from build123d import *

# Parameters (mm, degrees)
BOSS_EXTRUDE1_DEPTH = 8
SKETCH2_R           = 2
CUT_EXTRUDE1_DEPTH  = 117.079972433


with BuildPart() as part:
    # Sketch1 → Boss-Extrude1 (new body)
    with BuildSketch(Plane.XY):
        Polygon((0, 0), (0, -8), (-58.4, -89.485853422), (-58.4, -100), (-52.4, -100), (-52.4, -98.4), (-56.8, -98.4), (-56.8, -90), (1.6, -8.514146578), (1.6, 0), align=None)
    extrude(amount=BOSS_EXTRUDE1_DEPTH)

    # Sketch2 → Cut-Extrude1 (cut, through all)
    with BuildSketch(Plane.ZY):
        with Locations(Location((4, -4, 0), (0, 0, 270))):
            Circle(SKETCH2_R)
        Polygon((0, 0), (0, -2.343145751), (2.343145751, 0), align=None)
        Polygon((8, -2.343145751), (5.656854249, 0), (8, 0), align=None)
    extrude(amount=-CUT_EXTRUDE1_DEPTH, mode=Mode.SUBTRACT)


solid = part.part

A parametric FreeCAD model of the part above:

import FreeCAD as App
import Part
import Sketcher

doc = App.newDocument("Part")
body = doc.addObject("PartDesign::Body", "Body")

sketch1 = body.newObject("Sketcher::SketchObject", "Sketch")
sketch1.AttachmentSupport = (doc.getObject("XY_Plane"), [""])
sketch1.MapMode = "FlatFace"
sketch1.addGeometry([
    Part.LineSegment(App.Vector(0, 0, 0), App.Vector(0, -8, 0)),
    Part.LineSegment(App.Vector(0, -8, 0), App.Vector(-58.4, -89.5, 0)),
    Part.LineSegment(App.Vector(-58.4, -89.5, 0), App.Vector(-58.4, -100, 0)),
    Part.LineSegment(App.Vector(-58.4, -100, 0), App.Vector(-52.4, -100, 0)),
    Part.LineSegment(App.Vector(-52.4, -100, 0), App.Vector(-52.4, -98.4, 0)),
    Part.LineSegment(App.Vector(-52.4, -98.4, 0), App.Vector(-56.8, -98.4, 0)),
    Part.LineSegment(App.Vector(-56.8, -98.4, 0), App.Vector(-56.8, -90, 0)),
    Part.LineSegment(App.Vector(-56.8, -90, 0), App.Vector(1.6, -8.5, 0)),
    Part.LineSegment(App.Vector(1.6, -8.5, 0), App.Vector(1.6, 0, 0)),
    Part.LineSegment(App.Vector(1.6, 0, 0), App.Vector(0, 0, 0)),
], False)
sketch1.addConstraint([
    Sketcher.Constraint("Coincident", 0, 2, 1, 1),
    Sketcher.Constraint("Coincident", 1, 2, 2, 1),
    Sketcher.Constraint("Coincident", 2, 2, 3, 1),
    Sketcher.Constraint("Coincident", 3, 2, 4, 1),
    Sketcher.Constraint("Coincident", 4, 2, 5, 1),
    Sketcher.Constraint("Coincident", 5, 2, 6, 1),
    Sketcher.Constraint("Coincident", 6, 2, 7, 1),
    Sketcher.Constraint("Coincident", 7, 2, 8, 1),
    Sketcher.Constraint("Coincident", 8, 2, 9, 1),
    Sketcher.Constraint("Coincident", 9, 2, 0, 1),
    Sketcher.Constraint("Vertical", 0),
    Sketcher.Constraint("Vertical", 2),
    Sketcher.Constraint("Horizontal", 3),
    Sketcher.Constraint("Vertical", 4),
    Sketcher.Constraint("Horizontal", 5),
    Sketcher.Constraint("Vertical", 6),
    Sketcher.Constraint("Vertical", 8),
    Sketcher.Constraint("Horizontal", 9),
    Sketcher.Constraint("Coincident", 9, 2, -1, 1),
    Sketcher.Constraint("Parallel", 1, 7),
    Sketcher.Constraint("Equal", 9, 4),
    Sketcher.Constraint("Equal", 1, 7),
    Sketcher.Constraint("DistanceX", 3, 1, 3, 2, 6.0),
    Sketcher.Constraint("DistanceY", 0, 2, 0, 1, 8.0),
    Sketcher.Constraint("DistanceX", 5, 2, 5, 1, 4.4),
    Sketcher.Constraint("DistanceY", 6, 1, 6, 2, 8.4),
    Sketcher.Constraint("DistanceY", 2, 2, -1, 1, 100.0),
    Sketcher.Constraint("DistanceX", 1, 2, 7, 2, 60.0),
    Sketcher.Constraint("DistanceY", 2, 2, 2, 1, 10.514147),
])
pad1 = body.newObject("PartDesign::Pad", "Pad")
pad1.Profile = sketch1
pad1.Length = 8

sketch2 = body.newObject("Sketcher::SketchObject", "Sketch001")
sketch2.AttachmentSupport = (doc.getObject("YZ_Plane"), [""])
sketch2.MapMode = "FlatFace"
sketch2.addGeometry([
    Part.Circle(App.Vector(-4, 4, 0), App.Vector(0, 0, 1), 2),
    Part.LineSegment(App.Vector(0, 0, 0), App.Vector(-2.3, 0, 0)),
    Part.LineSegment(App.Vector(-2.3, 0, 0), App.Vector(0, 2.3, 0)),
    Part.LineSegment(App.Vector(0, 2.3, 0), App.Vector(0, 0, 0)),
    Part.LineSegment(App.Vector(0, 5.7, 0), App.Vector(-2.3, 8, 0)),
    Part.LineSegment(App.Vector(-2.3, 8, 0), App.Vector(0, 8, 0)),
    Part.LineSegment(App.Vector(0, 8, 0), App.Vector(0, 5.7, 0)),
], False)
sketch2.addConstraint([
    Sketcher.Constraint("Coincident", 1, 2, 2, 1),
    Sketcher.Constraint("Coincident", 2, 2, 3, 1),
    Sketcher.Constraint("Coincident", 3, 2, 1, 1),
    Sketcher.Constraint("Coincident", 4, 2, 5, 1),
    Sketcher.Constraint("Coincident", 5, 2, 6, 1),
    Sketcher.Constraint("Coincident", 6, 2, 4, 1),
    Sketcher.Constraint("Horizontal", 1),
    Sketcher.Constraint("Vertical", 3),
    Sketcher.Constraint("Horizontal", 5),
    Sketcher.Constraint("Vertical", 6),
    Sketcher.Constraint("Coincident", 3, 2, -1, 1),
    Sketcher.Constraint("PointOnObject", 5, 2, -2),
    Sketcher.Constraint("Perpendicular", 2, 4),
    Sketcher.Constraint("Vertical", 1, 2, 4, 2),
    Sketcher.Constraint("Equal", 5, 3),
    Sketcher.Constraint("Diameter", 0, 4.0),
    Sketcher.Constraint("DistanceX", 0, 3, -1, 1, 4.0),
    Sketcher.Constraint("DistanceY", -1, 1, 0, 3, 4.0),
    Sketcher.Constraint("DistanceY", -1, 1, 4, 2, 8.0),
    Sketcher.Constraint("Distance", 2, 3.313708),
])
pocket1 = body.newObject("PartDesign::Pocket", "Pocket")
pocket1.Profile = sketch2
pocket1.Type = "ThroughAll"
pocket1.Reversed = True

doc.recompute()
